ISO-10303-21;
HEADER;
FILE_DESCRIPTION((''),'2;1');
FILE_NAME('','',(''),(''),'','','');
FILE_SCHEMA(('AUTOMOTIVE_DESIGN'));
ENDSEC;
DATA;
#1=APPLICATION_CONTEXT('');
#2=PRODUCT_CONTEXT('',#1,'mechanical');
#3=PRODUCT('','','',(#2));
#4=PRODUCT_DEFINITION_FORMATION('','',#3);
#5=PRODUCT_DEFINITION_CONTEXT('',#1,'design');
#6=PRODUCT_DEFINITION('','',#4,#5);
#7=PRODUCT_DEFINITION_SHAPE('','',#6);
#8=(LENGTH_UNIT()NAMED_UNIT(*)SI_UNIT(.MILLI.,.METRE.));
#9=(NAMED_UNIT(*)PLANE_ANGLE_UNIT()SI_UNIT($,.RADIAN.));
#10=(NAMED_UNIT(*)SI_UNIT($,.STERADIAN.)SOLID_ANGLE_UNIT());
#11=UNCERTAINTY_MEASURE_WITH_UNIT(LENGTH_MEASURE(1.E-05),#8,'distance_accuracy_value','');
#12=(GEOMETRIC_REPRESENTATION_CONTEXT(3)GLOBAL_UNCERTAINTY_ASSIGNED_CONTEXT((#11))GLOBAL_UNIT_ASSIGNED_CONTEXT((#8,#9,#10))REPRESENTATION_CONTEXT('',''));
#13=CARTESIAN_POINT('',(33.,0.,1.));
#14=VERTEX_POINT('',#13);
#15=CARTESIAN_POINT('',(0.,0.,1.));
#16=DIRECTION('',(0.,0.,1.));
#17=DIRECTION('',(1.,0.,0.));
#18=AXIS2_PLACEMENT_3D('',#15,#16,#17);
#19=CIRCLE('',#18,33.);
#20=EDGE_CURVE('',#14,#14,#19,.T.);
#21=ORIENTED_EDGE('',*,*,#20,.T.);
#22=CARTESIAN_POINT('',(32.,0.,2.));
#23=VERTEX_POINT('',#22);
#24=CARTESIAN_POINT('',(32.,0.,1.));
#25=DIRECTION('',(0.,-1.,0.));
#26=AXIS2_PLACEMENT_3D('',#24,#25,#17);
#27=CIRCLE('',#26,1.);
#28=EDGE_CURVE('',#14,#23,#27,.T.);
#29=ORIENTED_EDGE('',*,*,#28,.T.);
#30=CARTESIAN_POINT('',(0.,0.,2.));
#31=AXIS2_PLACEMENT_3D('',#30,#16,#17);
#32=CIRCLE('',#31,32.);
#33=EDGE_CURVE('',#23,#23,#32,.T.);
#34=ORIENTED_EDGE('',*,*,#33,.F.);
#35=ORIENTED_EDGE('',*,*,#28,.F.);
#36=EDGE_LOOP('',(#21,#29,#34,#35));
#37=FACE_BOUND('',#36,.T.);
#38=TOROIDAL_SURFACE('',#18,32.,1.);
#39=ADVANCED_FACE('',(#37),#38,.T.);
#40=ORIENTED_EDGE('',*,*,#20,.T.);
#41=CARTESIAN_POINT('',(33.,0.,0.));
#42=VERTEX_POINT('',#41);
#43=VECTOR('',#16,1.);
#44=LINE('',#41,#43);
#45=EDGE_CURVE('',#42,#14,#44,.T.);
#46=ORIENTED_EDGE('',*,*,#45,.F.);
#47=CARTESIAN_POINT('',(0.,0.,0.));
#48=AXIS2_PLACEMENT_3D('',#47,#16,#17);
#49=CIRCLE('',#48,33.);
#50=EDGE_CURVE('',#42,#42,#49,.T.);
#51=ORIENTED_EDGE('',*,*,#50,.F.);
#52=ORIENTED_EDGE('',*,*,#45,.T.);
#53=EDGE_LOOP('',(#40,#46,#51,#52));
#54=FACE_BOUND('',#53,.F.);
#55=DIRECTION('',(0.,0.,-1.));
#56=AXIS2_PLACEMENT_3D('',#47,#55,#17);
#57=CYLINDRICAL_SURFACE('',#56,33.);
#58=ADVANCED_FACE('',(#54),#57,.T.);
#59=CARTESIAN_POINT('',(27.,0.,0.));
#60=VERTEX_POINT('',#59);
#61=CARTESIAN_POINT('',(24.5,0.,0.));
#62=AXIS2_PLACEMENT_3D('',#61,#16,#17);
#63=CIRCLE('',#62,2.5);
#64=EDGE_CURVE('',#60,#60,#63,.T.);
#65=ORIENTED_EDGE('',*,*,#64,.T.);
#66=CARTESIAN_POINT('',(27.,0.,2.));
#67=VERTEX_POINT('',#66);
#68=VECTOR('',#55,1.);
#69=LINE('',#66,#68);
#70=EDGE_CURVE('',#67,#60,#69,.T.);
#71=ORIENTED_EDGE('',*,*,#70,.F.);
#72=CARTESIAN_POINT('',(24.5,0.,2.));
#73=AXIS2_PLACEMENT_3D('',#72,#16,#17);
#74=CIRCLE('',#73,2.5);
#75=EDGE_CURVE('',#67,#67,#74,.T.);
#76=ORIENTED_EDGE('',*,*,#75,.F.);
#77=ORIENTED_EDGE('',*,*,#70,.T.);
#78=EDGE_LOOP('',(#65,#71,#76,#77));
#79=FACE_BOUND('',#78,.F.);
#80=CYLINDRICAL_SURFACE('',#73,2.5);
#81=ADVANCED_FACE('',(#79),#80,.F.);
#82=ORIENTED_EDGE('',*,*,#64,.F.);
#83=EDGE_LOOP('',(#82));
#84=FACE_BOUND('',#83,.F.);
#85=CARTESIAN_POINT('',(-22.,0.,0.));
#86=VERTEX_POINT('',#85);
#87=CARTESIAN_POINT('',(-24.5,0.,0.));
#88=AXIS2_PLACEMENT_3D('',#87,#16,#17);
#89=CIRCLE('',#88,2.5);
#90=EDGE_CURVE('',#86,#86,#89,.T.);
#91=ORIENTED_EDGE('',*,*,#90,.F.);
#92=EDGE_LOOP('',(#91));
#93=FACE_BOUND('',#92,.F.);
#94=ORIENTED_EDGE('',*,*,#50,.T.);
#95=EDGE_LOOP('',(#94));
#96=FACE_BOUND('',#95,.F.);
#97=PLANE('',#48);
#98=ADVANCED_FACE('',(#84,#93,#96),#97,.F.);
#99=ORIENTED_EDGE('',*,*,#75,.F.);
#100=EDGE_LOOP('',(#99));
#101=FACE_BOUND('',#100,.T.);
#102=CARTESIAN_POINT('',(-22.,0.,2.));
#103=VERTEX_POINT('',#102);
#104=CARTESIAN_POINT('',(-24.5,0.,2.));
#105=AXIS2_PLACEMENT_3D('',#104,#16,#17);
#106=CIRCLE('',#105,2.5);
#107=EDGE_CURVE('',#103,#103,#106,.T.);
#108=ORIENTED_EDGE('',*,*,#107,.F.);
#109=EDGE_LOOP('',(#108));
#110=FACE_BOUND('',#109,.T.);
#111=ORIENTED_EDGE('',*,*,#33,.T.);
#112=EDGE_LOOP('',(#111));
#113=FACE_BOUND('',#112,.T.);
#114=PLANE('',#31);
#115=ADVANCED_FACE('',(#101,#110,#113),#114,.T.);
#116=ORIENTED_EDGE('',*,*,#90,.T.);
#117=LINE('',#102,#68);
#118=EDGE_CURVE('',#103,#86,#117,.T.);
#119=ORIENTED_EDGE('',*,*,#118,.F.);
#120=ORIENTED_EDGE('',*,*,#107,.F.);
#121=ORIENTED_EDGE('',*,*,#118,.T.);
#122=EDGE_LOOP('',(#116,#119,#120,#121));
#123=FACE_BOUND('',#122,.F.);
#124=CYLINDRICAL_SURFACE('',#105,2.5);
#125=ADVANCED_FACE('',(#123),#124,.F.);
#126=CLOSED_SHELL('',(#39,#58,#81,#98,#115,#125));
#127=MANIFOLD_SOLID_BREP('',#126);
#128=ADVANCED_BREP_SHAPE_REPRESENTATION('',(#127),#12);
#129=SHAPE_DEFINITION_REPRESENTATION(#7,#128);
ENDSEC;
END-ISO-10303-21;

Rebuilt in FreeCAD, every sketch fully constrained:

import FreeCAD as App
import Part
import Sketcher
Q = App.Units.Quantity


def edges_at(feature, points):
    """Names of the edges that pass closest to the given points."""
    edges = feature.Shape.Edges
    near = lambda p: min(range(len(edges)), key=lambda i: edges[i].distToShape(Part.Vertex(*p))[0])
    return sorted({f"Edge{near(p) + 1}" for p in points})

doc = App.newDocument("Part")
body = doc.addObject("PartDesign::Body", "Body")

# Sketch on XY plane
sketch1 = body.newObject("Sketcher::SketchObject", "Sketch")
sketch1.AttachmentSupport = (doc.getObject("XY_Plane"), [""])
sketch1.MapMode = "FlatFace"
sketch1.addGeometry(Part.Circle(App.Vector(0, 0, 0), App.Vector(0, 0, 1), 33), False)
sketch1.addConstraint([
    Sketcher.Constraint("Coincident", 0, 3, -1, 1),
    Sketcher.Constraint("Diameter", 0, Q("66 mm")),
])
pad1 = body.newObject("PartDesign::Pad", "Pad")
pad1.Profile = sketch1
pad1.Length = 2

# Sketch on XY plane
sketch2 = body.newObject("Sketcher::SketchObject", "Sketch001")
sketch2.AttachmentSupport = (doc.getObject("XY_Plane"), [""])
sketch2.MapMode = "FlatFace"
sketch2.AttachmentOffset = App.Placement(App.Vector(0, 0, 2), App.Rotation())
sketch2.addGeometry([
    Part.Circle(App.Vector(-24.5, 0, 0), App.Vector(0, 0, 1), 2.5),
    Part.Circle(App.Vector(24.5, 0, 0), App.Vector(0, 0, 1), 2.5),
], False)
sketch2.addConstraint([
    Sketcher.Constraint("Equal", 0, 1),
    Sketcher.Constraint("Symmetric", 0, 3, 1, 3, -1, 1),
    Sketcher.Constraint("PointOnObject", 0, 3, -1),
    Sketcher.Constraint("Diameter", 0, Q("5 mm")),
    Sketcher.Constraint("DistanceX", 0, 3, 1, 3, Q("49 mm")),
])
pocket1 = body.newObject("PartDesign::Pocket", "Pocket")
pocket1.Profile = sketch2
pocket1.Length = 25
doc.recompute()

fillet = body.newObject("PartDesign::Fillet", "Fillet")
fillet.Base = (pocket1, edges_at(pocket1, [(-33, 0, 2)]))
fillet.Radius = 1

doc.recompute()
